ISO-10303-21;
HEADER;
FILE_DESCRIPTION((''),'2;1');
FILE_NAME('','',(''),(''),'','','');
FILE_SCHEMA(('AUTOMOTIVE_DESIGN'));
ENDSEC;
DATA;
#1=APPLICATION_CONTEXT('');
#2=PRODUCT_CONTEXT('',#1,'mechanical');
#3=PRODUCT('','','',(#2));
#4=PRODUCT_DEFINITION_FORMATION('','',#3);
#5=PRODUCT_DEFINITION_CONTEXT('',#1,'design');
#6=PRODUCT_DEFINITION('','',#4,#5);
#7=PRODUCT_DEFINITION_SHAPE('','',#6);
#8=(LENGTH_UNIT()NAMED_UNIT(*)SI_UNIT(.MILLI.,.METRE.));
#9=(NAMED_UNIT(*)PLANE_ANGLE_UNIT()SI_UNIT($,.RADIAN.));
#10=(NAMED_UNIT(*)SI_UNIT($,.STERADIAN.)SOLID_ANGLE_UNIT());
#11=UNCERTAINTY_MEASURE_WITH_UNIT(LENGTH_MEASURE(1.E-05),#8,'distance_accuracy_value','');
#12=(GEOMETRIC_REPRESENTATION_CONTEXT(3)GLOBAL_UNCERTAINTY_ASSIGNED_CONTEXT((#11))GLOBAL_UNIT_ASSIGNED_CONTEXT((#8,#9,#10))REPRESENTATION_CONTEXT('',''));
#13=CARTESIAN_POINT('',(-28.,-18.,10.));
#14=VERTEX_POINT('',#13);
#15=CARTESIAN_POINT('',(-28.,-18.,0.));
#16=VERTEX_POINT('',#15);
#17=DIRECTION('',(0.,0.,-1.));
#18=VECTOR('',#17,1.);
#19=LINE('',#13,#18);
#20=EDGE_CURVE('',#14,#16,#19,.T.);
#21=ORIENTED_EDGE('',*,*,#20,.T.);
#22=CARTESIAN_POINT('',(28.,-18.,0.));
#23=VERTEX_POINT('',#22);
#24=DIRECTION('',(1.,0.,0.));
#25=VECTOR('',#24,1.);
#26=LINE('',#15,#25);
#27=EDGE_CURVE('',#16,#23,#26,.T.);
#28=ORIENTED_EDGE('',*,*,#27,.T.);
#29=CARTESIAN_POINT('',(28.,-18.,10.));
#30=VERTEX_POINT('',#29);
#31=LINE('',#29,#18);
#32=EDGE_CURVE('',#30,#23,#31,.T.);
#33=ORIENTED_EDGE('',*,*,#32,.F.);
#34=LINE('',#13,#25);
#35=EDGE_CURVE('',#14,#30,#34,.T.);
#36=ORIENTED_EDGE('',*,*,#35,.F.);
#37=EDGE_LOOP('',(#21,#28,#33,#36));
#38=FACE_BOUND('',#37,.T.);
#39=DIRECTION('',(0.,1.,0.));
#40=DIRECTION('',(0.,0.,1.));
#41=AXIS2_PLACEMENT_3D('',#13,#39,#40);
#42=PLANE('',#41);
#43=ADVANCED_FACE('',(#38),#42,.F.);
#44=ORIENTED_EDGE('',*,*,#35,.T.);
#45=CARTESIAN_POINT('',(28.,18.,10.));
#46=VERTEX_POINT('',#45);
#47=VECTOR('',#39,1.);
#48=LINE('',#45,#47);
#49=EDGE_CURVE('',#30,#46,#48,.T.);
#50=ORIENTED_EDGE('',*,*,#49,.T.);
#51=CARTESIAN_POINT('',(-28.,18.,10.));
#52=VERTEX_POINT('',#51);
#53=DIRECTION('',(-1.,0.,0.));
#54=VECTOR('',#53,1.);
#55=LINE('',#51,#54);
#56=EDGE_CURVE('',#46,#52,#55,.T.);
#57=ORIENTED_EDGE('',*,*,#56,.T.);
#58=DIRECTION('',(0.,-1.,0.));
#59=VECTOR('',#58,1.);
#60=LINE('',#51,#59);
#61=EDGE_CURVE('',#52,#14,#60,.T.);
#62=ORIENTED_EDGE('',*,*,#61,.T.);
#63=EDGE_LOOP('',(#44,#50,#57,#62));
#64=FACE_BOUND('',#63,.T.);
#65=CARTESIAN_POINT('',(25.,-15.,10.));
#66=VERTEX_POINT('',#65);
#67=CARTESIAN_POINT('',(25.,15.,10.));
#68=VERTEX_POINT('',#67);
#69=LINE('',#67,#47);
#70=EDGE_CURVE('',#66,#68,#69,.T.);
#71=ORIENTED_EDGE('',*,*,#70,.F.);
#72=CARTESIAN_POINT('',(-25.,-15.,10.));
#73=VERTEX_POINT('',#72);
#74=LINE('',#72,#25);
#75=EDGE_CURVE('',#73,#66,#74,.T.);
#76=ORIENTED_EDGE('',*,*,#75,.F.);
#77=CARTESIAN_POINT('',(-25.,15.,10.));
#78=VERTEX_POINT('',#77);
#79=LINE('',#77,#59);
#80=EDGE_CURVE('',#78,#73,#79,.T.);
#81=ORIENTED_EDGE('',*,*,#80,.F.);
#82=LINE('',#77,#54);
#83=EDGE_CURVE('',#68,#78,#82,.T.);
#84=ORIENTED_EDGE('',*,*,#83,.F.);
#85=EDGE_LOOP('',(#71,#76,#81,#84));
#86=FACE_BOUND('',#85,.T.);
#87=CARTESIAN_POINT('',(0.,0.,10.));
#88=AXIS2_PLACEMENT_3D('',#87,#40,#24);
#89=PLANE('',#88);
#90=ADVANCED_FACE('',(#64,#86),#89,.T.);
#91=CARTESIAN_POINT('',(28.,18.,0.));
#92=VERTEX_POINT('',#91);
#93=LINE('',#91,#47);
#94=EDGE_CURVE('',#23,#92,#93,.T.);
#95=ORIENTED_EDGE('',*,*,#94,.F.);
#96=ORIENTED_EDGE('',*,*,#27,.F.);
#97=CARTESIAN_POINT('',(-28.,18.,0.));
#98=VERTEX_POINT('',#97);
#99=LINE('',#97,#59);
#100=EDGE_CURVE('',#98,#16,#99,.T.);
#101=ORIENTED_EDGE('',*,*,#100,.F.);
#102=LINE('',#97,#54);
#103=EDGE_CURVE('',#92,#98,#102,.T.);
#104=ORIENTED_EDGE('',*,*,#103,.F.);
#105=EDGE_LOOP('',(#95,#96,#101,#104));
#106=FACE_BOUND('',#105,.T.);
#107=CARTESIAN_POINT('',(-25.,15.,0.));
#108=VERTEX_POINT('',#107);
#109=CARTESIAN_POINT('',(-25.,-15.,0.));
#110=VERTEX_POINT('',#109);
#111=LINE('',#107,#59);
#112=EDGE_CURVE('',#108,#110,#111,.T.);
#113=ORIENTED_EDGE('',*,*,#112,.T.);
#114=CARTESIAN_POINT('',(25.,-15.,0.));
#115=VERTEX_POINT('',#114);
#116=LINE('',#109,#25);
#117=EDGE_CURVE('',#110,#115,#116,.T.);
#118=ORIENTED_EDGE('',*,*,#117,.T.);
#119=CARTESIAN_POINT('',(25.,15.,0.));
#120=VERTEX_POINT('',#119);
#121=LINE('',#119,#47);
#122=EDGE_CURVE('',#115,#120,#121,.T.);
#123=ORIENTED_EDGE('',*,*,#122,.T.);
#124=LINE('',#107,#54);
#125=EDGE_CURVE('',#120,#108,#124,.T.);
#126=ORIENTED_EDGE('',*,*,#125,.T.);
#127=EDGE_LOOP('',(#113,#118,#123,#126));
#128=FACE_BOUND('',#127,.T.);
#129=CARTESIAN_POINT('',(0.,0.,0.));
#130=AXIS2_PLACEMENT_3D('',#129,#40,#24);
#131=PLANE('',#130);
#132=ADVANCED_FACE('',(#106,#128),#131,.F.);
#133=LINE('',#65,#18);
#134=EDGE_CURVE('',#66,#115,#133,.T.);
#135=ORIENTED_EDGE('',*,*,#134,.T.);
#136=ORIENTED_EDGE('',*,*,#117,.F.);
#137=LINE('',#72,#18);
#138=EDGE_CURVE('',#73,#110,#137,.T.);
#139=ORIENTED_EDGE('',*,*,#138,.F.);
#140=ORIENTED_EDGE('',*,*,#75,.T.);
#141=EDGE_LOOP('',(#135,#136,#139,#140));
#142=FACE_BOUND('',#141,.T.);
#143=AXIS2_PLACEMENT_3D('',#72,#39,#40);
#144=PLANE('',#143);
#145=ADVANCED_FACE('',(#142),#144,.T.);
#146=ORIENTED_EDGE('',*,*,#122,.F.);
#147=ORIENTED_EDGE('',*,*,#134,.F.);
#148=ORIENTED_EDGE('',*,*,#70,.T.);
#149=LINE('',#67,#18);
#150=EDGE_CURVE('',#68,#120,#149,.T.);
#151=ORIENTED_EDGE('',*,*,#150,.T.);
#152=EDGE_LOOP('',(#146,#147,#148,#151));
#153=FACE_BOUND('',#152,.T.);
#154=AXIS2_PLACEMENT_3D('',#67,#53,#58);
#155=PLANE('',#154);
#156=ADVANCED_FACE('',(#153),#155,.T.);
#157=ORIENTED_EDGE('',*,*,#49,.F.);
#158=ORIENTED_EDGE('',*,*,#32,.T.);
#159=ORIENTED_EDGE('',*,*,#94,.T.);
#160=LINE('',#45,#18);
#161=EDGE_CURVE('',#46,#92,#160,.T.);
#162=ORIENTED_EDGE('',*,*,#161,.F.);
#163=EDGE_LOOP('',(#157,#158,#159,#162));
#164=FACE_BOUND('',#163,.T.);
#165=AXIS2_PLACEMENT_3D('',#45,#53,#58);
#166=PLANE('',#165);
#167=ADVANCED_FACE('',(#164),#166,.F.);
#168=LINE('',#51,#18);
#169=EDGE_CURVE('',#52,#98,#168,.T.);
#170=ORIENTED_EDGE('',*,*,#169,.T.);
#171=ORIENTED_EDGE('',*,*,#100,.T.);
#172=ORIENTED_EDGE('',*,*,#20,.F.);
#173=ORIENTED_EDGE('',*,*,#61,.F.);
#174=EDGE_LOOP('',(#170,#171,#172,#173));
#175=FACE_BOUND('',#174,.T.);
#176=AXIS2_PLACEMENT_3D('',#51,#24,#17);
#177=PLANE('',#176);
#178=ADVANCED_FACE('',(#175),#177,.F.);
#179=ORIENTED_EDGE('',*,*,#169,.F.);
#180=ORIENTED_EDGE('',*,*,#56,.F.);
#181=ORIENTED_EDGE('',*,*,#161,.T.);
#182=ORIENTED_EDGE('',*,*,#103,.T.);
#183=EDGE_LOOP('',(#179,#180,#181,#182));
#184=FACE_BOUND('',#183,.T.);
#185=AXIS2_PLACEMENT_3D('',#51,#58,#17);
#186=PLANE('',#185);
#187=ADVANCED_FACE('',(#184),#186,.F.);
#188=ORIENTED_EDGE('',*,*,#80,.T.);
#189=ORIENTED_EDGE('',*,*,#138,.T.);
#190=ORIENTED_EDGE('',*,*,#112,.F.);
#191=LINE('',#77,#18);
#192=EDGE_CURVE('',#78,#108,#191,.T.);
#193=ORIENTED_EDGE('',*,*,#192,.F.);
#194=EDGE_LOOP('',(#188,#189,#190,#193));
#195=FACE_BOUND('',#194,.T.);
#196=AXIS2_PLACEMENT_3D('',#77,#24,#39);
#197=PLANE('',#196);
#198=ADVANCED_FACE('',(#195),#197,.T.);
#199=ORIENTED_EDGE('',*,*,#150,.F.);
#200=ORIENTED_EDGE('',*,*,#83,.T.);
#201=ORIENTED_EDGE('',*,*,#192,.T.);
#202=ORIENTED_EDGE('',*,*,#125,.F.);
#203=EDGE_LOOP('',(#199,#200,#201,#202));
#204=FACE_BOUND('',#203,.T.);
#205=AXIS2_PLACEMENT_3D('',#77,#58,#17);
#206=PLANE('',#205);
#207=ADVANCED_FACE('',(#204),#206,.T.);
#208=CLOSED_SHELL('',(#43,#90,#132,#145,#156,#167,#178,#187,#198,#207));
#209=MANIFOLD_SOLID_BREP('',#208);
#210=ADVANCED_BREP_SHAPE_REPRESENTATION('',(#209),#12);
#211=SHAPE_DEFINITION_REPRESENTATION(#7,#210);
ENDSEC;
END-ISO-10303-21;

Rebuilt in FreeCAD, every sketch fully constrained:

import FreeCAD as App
import Part
import Sketcher
from FreeCAD import Vector

doc = App.newDocument("Part")
params = doc.addObject("Spreadsheet::Sheet", "Params")
for row, (alias, value) in enumerate([
    ("sketch1_width", "56 mm"),
    ("sketch1_width2", "50 mm"),
    ("sketch1_height", "36 mm"),
    ("sketch1_height2", "30 mm"),
    ("pad1_length", "10 mm"),
], start=1):
    params.set(f"A{row}", alias)
    params.set(f"B{row}", "=" + value)
    params.setAlias(f"B{row}", alias)

body = doc.addObject("PartDesign::Body", "Body")

# Sketch on XY plane
sketch1 = body.newObject("Sketcher::SketchObject", "Sketch")
sketch1.AttachmentSupport = (doc.getObject("XY_Plane"), [""])
sketch1.MapMode = "FlatFace"
sketch1.addGeometry(Part.LineSegment(Vector(-28, 18, 0), Vector(-28, -18, 0)), False)
sketch1.addGeometry(Part.LineSegment(Vector(-28, -18, 0), Vector(28, -18, 0)), False)
sketch1.addGeometry(Part.LineSegment(Vector(28, -18, 0), Vector(28, 18, 0)), False)
sketch1.addGeometry(Part.LineSegment(Vector(28, 18, 0), Vector(-28, 18, 0)), False)
sketch1.addGeometry(Part.LineSegment(Vector(25, -15, 0), Vector(-25, -15, 0)), False)
sketch1.addGeometry(Part.LineSegment(Vector(-25, -15, 0), Vector(-25, 15, 0)), False)
sketch1.addGeometry(Part.LineSegment(Vector(-25, 15, 0), Vector(25, 15, 0)), False)
sketch1.addGeometry(Part.LineSegment(Vector(25, 15, 0), Vector(25, -15, 0)), False)
sketch1.addConstraint(Sketcher.Constraint("Coincident", 0, 2, 1, 1))
sketch1.addConstraint(Sketcher.Constraint("Coincident", 1, 2, 2, 1))
sketch1.addConstraint(Sketcher.Constraint("Coincident", 2, 2, 3, 1))
sketch1.addConstraint(Sketcher.Constraint("Coincident", 3, 2, 0, 1))
sketch1.addConstraint(Sketcher.Constraint("Coincident", 4, 2, 5, 1))
sketch1.addConstraint(Sketcher.Constraint("Coincident", 5, 2, 6, 1))
sketch1.addConstraint(Sketcher.Constraint("Coincident", 6, 2, 7, 1))
sketch1.addConstraint(Sketcher.Constraint("Coincident", 7, 2, 4, 1))
sketch1.addConstraint(Sketcher.Constraint("Vertical", 0))
sketch1.addConstraint(Sketcher.Constraint("Horizontal", 1))
sketch1.addConstraint(Sketcher.Constraint("Vertical", 2))
sketch1.addConstraint(Sketcher.Constraint("Horizontal", 3))
sketch1.addConstraint(Sketcher.Constraint("Horizontal", 4))
sketch1.addConstraint(Sketcher.Constraint("Vertical", 5))
sketch1.addConstraint(Sketcher.Constraint("Horizontal", 6))
sketch1.addConstraint(Sketcher.Constraint("Vertical", 7))
sketch1.addConstraint(Sketcher.Constraint("Symmetric", 0, 2, 2, 2, -1, 1))
sketch1.addConstraint(Sketcher.Constraint("Symmetric", 4, 2, 6, 2, -1, 1))
sketch1.addConstraint(Sketcher.Constraint("DistanceX", 1, 1, 1, 2, 56.0))
sketch1.addConstraint(Sketcher.Constraint("DistanceX", 4, 2, 4, 1, 50.0))
sketch1.addConstraint(Sketcher.Constraint("DistanceY", 0, 2, 0, 1, 36.0))
sketch1.addConstraint(Sketcher.Constraint("DistanceY", 5, 1, 5, 2, 30.0))
sketch1.setExpression("Constraints[18]", "Params.sketch1_width")
sketch1.setExpression("Constraints[19]", "Params.sketch1_width2")
sketch1.setExpression("Constraints[20]", "Params.sketch1_height")
sketch1.setExpression("Constraints[21]", "Params.sketch1_height2")
pad1 = body.newObject("PartDesign::Pad", "Pad")
pad1.Profile = sketch1
pad1.setExpression("Length", "Params.pad1_length")

doc.recompute()
